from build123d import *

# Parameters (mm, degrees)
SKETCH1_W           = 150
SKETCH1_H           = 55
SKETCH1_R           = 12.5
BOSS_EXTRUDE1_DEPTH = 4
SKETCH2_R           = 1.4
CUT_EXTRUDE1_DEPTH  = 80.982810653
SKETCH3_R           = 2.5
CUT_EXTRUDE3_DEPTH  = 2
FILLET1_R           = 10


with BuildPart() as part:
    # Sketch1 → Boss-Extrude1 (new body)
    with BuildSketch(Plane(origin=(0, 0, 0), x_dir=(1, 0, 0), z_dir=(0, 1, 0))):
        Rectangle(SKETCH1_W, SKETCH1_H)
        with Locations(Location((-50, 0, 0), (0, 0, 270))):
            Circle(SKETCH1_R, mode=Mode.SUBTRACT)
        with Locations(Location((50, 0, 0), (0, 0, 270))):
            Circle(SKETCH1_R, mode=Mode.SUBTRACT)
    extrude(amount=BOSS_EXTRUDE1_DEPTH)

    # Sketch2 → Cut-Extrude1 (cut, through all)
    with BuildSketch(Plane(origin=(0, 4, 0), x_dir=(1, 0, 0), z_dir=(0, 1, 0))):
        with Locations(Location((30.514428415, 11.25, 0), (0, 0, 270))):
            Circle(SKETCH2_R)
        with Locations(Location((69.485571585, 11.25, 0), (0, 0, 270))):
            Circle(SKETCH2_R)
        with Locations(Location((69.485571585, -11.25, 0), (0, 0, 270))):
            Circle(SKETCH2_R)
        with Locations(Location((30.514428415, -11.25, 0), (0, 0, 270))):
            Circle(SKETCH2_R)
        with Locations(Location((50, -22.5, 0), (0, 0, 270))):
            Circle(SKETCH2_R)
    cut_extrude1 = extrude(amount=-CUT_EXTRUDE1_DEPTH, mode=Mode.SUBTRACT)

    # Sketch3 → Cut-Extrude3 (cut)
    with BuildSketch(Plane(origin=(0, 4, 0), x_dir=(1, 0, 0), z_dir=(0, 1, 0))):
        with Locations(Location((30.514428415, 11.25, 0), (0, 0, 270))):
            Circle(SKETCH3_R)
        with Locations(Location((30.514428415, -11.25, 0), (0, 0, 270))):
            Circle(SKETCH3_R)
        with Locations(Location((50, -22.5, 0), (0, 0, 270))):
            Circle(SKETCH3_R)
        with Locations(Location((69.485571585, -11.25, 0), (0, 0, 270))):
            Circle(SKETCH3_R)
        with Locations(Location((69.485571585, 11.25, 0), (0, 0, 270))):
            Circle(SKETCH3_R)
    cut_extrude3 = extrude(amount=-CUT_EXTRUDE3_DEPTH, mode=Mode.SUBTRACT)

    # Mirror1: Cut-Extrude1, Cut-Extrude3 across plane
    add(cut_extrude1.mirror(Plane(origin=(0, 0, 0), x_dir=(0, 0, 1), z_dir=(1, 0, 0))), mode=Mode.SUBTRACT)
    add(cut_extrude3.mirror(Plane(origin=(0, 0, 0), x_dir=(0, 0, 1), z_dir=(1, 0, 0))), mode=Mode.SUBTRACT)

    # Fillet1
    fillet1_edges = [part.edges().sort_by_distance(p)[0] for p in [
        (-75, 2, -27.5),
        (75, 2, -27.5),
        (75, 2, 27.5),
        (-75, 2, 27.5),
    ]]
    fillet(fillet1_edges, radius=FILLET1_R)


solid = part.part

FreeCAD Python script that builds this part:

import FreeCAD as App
import Part
import Sketcher
Q = App.Units.Quantity


def edges_at(feature, points):
    """Names of the edges that pass closest to the given points."""
    edges = feature.Shape.Edges
    near = lambda p: min(range(len(edges)), key=lambda i: edges[i].distToShape(Part.Vertex(*p))[0])
    return sorted({f"Edge{near(p) + 1}" for p in points})

doc = App.newDocument("Part")
body = doc.addObject("PartDesign::Body", "Body")

sketch1 = body.newObject("Sketcher::SketchObject", "Sketch")
sketch1.AttachmentSupport = (doc.getObject("XZ_Plane"), [""])
sketch1.MapMode = "FlatFace"
sketch1.addGeometry(Part.LineSegment(App.Vector(-75, -28, 0), App.Vector(-75, 28, 0)), False)
sketch1.addGeometry(Part.LineSegment(App.Vector(-75, 28, 0), App.Vector(75, 28, 0)), False)
sketch1.addGeometry(Part.LineSegment(App.Vector(75, 28, 0), App.Vector(75, -28, 0)), False)
sketch1.addGeometry(Part.LineSegment(App.Vector(75, -28, 0), App.Vector(-75, -28, 0)), False)
sketch1.addGeometry(Part.Circle(App.Vector(-50, 0, 0), App.Vector(0, 0, 1), 12), False)
sketch1.addGeometry(Part.Circle(App.Vector(50, 0, 0), App.Vector(0, 0, 1), 12), False)
sketch1.addConstraint(Sketcher.Constraint("Coincident", 0, 2, 1, 1))
sketch1.addConstraint(Sketcher.Constraint("Coincident", 1, 2, 2, 1))
sketch1.addConstraint(Sketcher.Constraint("Coincident", 2, 2, 3, 1))
sketch1.addConstraint(Sketcher.Constraint("Coincident", 3, 2, 0, 1))
sketch1.addConstraint(Sketcher.Constraint("Vertical", 0))
sketch1.addConstraint(Sketcher.Constraint("Horizontal", 1))
sketch1.addConstraint(Sketcher.Constraint("Vertical", 2))
sketch1.addConstraint(Sketcher.Constraint("Horizontal", 3))
sketch1.addConstraint(Sketcher.Constraint("Equal", 4, 5))
sketch1.addConstraint(Sketcher.Constraint("Symmetric", 4, 3, 5, 3, -1, 1))
sketch1.addConstraint(Sketcher.Constraint("Symmetric", 0, 2, 2, 2, -1, 1))
sketch1.addConstraint(Sketcher.Constraint("PointOnObject", 4, 3, -1))
sketch1.addConstraint(Sketcher.Constraint("Diameter", 4, Q("25 mm")))
sketch1.addConstraint(Sketcher.Constraint("DistanceX", 1, 1, 1, 2, Q("150 mm")))
sketch1.addConstraint(Sketcher.Constraint("DistanceY", 0, 1, 0, 2, Q("55 mm")))
sketch1.addConstraint(Sketcher.Constraint("DistanceX", 4, 3, -1, 1, Q("50 mm")))
pad1 = body.newObject("PartDesign::Pad", "Pad")
pad1.Profile = sketch1
pad1.Length = 4
pad1.Reversed = True

sketch2 = body.newObject("Sketcher::SketchObject", "Sketch001")
sketch2.AttachmentSupport = (doc.getObject("XZ_Plane"), [""])
sketch2.MapMode = "FlatFace"
sketch2.AttachmentOffset = App.Placement(App.Vector(0, 0, -4), App.Rotation())
sketch2.addGeometry(Part.Circle(App.Vector(30.5, -11.2, 0), App.Vector(0, 0, 1), 1.4), False)
sketch2.addGeometry(Part.Circle(App.Vector(69.5, -11.2, 0), App.Vector(0, 0, 1), 1.4), False)
sketch2.addGeometry(Part.Circle(App.Vector(69.5, 11.2, 0), App.Vector(0, 0, 1), 1.4), False)
sketch2.addGeometry(Part.Circle(App.Vector(30.5, 11.2, 0), App.Vector(0, 0, 1), 1.4), False)
sketch2.addGeometry(Part.Circle(App.Vector(50, 22.5, 0), App.Vector(0, 0, 1), 1.4), False)
sketch2.addConstraint(Sketcher.Constraint("Equal", 0, 1))
sketch2.addConstraint(Sketcher.Constraint("Equal", 1, 2))
sketch2.addConstraint(Sketcher.Constraint("Equal", 2, 3))
sketch2.addConstraint(Sketcher.Constraint("Equal", 3, 4))
sketch2.addConstraint(Sketcher.Constraint("Symmetric", 1, 3, 2, 3, -1))
sketch2.addConstraint(Sketcher.Constraint("Symmetric", 0, 3, 3, 3, -1))
sketch2.addConstraint(Sketcher.Constraint("Horizontal", 0, 3, 1, 3))
sketch2.addConstraint(Sketcher.Constraint("Diameter", 0, Q("2.8 mm")))
sketch2.addConstraint(Sketcher.Constraint("DistanceX", -1, 1, 4, 3, Q("50 mm")))
sketch2.addConstraint(Sketcher.Constraint("DistanceY", -1, 1, 4, 3, Q("22.5 mm")))
sketch2.addConstraint(Sketcher.Constraint("DistanceY", 1, 3, 2, 3, Q("22.5 mm")))
sketch2.addConstraint(Sketcher.Constraint("DistanceX", -1, 1, 0, 3, Q("30.514428 mm")))
sketch2.addConstraint(Sketcher.Constraint("DistanceX", -1, 1, 1, 3, Q("69.485572 mm")))
pocket1 = body.newObject("PartDesign::Pocket", "Pocket")
pocket1.Profile = sketch2
pocket1.Type = "ThroughAll"
pocket1.Reversed = True

sketch3 = body.newObject("Sketcher::SketchObject", "Sketch002")
sketch3.AttachmentSupport = (doc.getObject("XZ_Plane"), [""])
sketch3.MapMode = "FlatFace"
sketch3.AttachmentOffset = App.Placement(App.Vector(0, 0, -4), App.Rotation())
sketch3.addGeometry(Part.Circle(App.Vector(30.5, -11.2, 0), App.Vector(0, 0, 1), 2.5), False)
sketch3.addGeometry(Part.Circle(App.Vector(30.5, 11.2, 0), App.Vector(0, 0, 1), 2.5), False)
sketch3.addGeometry(Part.Circle(App.Vector(50, 22.5, 0), App.Vector(0, 0, 1), 2.5), False)
sketch3.addGeometry(Part.Circle(App.Vector(69.5, 11.2, 0), App.Vector(0, 0, 1), 2.5), False)
sketch3.addGeometry(Part.Circle(App.Vector(69.5, -11.2, 0), App.Vector(0, 0, 1), 2.5), False)
sketch3.addConstraint(Sketcher.Constraint("Equal", 0, 1))
sketch3.addConstraint(Sketcher.Constraint("Equal", 1, 2))
sketch3.addConstraint(Sketcher.Constraint("Equal", 2, 3))
sketch3.addConstraint(Sketcher.Constraint("Equal", 3, 4))
sketch3.addConstraint(Sketcher.Constraint("Symmetric", 0, 3, 1, 3, -1))
sketch3.addConstraint(Sketcher.Constraint("Symmetric", 3, 3, 4, 3, -1))
sketch3.addConstraint(Sketcher.Constraint("Horizontal", 1, 3, 3, 3))
sketch3.addConstraint(Sketcher.Constraint("Diameter", 0, Q("5 mm")))
sketch3.addConstraint(Sketcher.Constraint("DistanceX", -1, 1, 2, 3, Q("50 mm")))
sketch3.addConstraint(Sketcher.Constraint("DistanceY", -1, 1, 2, 3, Q("22.5 mm")))
sketch3.addConstraint(Sketcher.Constraint("DistanceY", 0, 3, 1, 3, Q("22.5 mm")))
sketch3.addConstraint(Sketcher.Constraint("DistanceX", -1, 1, 0, 3, Q("30.514428 mm")))
sketch3.addConstraint(Sketcher.Constraint("DistanceX", -1, 1, 3, 3, Q("69.485572 mm")))
pocket2 = body.newObject("PartDesign::Pocket", "Pocket001")
pocket2.Profile = sketch3
pocket2.Length = 2
pocket2.Reversed = True
doc.recompute()

mirrored = body.newObject("PartDesign::Mirrored", "Mirrored")
mirrored.Originals = [pocket1, pocket2]
mirrored.MirrorPlane = (doc.getObject("YZ_Plane"), [""])
body.Tip = mirrored
doc.recompute()

fillet = body.newObject("PartDesign::Fillet", "Fillet")
fillet.Base = (mirrored, edges_at(mirrored, [
    (-75, 2, -27.5),
    (75, 2, -27.5),
    (75, 2, 27.5),
    (-75, 2, 27.5),
]))
fillet.Radius = 10

doc.recompute()
